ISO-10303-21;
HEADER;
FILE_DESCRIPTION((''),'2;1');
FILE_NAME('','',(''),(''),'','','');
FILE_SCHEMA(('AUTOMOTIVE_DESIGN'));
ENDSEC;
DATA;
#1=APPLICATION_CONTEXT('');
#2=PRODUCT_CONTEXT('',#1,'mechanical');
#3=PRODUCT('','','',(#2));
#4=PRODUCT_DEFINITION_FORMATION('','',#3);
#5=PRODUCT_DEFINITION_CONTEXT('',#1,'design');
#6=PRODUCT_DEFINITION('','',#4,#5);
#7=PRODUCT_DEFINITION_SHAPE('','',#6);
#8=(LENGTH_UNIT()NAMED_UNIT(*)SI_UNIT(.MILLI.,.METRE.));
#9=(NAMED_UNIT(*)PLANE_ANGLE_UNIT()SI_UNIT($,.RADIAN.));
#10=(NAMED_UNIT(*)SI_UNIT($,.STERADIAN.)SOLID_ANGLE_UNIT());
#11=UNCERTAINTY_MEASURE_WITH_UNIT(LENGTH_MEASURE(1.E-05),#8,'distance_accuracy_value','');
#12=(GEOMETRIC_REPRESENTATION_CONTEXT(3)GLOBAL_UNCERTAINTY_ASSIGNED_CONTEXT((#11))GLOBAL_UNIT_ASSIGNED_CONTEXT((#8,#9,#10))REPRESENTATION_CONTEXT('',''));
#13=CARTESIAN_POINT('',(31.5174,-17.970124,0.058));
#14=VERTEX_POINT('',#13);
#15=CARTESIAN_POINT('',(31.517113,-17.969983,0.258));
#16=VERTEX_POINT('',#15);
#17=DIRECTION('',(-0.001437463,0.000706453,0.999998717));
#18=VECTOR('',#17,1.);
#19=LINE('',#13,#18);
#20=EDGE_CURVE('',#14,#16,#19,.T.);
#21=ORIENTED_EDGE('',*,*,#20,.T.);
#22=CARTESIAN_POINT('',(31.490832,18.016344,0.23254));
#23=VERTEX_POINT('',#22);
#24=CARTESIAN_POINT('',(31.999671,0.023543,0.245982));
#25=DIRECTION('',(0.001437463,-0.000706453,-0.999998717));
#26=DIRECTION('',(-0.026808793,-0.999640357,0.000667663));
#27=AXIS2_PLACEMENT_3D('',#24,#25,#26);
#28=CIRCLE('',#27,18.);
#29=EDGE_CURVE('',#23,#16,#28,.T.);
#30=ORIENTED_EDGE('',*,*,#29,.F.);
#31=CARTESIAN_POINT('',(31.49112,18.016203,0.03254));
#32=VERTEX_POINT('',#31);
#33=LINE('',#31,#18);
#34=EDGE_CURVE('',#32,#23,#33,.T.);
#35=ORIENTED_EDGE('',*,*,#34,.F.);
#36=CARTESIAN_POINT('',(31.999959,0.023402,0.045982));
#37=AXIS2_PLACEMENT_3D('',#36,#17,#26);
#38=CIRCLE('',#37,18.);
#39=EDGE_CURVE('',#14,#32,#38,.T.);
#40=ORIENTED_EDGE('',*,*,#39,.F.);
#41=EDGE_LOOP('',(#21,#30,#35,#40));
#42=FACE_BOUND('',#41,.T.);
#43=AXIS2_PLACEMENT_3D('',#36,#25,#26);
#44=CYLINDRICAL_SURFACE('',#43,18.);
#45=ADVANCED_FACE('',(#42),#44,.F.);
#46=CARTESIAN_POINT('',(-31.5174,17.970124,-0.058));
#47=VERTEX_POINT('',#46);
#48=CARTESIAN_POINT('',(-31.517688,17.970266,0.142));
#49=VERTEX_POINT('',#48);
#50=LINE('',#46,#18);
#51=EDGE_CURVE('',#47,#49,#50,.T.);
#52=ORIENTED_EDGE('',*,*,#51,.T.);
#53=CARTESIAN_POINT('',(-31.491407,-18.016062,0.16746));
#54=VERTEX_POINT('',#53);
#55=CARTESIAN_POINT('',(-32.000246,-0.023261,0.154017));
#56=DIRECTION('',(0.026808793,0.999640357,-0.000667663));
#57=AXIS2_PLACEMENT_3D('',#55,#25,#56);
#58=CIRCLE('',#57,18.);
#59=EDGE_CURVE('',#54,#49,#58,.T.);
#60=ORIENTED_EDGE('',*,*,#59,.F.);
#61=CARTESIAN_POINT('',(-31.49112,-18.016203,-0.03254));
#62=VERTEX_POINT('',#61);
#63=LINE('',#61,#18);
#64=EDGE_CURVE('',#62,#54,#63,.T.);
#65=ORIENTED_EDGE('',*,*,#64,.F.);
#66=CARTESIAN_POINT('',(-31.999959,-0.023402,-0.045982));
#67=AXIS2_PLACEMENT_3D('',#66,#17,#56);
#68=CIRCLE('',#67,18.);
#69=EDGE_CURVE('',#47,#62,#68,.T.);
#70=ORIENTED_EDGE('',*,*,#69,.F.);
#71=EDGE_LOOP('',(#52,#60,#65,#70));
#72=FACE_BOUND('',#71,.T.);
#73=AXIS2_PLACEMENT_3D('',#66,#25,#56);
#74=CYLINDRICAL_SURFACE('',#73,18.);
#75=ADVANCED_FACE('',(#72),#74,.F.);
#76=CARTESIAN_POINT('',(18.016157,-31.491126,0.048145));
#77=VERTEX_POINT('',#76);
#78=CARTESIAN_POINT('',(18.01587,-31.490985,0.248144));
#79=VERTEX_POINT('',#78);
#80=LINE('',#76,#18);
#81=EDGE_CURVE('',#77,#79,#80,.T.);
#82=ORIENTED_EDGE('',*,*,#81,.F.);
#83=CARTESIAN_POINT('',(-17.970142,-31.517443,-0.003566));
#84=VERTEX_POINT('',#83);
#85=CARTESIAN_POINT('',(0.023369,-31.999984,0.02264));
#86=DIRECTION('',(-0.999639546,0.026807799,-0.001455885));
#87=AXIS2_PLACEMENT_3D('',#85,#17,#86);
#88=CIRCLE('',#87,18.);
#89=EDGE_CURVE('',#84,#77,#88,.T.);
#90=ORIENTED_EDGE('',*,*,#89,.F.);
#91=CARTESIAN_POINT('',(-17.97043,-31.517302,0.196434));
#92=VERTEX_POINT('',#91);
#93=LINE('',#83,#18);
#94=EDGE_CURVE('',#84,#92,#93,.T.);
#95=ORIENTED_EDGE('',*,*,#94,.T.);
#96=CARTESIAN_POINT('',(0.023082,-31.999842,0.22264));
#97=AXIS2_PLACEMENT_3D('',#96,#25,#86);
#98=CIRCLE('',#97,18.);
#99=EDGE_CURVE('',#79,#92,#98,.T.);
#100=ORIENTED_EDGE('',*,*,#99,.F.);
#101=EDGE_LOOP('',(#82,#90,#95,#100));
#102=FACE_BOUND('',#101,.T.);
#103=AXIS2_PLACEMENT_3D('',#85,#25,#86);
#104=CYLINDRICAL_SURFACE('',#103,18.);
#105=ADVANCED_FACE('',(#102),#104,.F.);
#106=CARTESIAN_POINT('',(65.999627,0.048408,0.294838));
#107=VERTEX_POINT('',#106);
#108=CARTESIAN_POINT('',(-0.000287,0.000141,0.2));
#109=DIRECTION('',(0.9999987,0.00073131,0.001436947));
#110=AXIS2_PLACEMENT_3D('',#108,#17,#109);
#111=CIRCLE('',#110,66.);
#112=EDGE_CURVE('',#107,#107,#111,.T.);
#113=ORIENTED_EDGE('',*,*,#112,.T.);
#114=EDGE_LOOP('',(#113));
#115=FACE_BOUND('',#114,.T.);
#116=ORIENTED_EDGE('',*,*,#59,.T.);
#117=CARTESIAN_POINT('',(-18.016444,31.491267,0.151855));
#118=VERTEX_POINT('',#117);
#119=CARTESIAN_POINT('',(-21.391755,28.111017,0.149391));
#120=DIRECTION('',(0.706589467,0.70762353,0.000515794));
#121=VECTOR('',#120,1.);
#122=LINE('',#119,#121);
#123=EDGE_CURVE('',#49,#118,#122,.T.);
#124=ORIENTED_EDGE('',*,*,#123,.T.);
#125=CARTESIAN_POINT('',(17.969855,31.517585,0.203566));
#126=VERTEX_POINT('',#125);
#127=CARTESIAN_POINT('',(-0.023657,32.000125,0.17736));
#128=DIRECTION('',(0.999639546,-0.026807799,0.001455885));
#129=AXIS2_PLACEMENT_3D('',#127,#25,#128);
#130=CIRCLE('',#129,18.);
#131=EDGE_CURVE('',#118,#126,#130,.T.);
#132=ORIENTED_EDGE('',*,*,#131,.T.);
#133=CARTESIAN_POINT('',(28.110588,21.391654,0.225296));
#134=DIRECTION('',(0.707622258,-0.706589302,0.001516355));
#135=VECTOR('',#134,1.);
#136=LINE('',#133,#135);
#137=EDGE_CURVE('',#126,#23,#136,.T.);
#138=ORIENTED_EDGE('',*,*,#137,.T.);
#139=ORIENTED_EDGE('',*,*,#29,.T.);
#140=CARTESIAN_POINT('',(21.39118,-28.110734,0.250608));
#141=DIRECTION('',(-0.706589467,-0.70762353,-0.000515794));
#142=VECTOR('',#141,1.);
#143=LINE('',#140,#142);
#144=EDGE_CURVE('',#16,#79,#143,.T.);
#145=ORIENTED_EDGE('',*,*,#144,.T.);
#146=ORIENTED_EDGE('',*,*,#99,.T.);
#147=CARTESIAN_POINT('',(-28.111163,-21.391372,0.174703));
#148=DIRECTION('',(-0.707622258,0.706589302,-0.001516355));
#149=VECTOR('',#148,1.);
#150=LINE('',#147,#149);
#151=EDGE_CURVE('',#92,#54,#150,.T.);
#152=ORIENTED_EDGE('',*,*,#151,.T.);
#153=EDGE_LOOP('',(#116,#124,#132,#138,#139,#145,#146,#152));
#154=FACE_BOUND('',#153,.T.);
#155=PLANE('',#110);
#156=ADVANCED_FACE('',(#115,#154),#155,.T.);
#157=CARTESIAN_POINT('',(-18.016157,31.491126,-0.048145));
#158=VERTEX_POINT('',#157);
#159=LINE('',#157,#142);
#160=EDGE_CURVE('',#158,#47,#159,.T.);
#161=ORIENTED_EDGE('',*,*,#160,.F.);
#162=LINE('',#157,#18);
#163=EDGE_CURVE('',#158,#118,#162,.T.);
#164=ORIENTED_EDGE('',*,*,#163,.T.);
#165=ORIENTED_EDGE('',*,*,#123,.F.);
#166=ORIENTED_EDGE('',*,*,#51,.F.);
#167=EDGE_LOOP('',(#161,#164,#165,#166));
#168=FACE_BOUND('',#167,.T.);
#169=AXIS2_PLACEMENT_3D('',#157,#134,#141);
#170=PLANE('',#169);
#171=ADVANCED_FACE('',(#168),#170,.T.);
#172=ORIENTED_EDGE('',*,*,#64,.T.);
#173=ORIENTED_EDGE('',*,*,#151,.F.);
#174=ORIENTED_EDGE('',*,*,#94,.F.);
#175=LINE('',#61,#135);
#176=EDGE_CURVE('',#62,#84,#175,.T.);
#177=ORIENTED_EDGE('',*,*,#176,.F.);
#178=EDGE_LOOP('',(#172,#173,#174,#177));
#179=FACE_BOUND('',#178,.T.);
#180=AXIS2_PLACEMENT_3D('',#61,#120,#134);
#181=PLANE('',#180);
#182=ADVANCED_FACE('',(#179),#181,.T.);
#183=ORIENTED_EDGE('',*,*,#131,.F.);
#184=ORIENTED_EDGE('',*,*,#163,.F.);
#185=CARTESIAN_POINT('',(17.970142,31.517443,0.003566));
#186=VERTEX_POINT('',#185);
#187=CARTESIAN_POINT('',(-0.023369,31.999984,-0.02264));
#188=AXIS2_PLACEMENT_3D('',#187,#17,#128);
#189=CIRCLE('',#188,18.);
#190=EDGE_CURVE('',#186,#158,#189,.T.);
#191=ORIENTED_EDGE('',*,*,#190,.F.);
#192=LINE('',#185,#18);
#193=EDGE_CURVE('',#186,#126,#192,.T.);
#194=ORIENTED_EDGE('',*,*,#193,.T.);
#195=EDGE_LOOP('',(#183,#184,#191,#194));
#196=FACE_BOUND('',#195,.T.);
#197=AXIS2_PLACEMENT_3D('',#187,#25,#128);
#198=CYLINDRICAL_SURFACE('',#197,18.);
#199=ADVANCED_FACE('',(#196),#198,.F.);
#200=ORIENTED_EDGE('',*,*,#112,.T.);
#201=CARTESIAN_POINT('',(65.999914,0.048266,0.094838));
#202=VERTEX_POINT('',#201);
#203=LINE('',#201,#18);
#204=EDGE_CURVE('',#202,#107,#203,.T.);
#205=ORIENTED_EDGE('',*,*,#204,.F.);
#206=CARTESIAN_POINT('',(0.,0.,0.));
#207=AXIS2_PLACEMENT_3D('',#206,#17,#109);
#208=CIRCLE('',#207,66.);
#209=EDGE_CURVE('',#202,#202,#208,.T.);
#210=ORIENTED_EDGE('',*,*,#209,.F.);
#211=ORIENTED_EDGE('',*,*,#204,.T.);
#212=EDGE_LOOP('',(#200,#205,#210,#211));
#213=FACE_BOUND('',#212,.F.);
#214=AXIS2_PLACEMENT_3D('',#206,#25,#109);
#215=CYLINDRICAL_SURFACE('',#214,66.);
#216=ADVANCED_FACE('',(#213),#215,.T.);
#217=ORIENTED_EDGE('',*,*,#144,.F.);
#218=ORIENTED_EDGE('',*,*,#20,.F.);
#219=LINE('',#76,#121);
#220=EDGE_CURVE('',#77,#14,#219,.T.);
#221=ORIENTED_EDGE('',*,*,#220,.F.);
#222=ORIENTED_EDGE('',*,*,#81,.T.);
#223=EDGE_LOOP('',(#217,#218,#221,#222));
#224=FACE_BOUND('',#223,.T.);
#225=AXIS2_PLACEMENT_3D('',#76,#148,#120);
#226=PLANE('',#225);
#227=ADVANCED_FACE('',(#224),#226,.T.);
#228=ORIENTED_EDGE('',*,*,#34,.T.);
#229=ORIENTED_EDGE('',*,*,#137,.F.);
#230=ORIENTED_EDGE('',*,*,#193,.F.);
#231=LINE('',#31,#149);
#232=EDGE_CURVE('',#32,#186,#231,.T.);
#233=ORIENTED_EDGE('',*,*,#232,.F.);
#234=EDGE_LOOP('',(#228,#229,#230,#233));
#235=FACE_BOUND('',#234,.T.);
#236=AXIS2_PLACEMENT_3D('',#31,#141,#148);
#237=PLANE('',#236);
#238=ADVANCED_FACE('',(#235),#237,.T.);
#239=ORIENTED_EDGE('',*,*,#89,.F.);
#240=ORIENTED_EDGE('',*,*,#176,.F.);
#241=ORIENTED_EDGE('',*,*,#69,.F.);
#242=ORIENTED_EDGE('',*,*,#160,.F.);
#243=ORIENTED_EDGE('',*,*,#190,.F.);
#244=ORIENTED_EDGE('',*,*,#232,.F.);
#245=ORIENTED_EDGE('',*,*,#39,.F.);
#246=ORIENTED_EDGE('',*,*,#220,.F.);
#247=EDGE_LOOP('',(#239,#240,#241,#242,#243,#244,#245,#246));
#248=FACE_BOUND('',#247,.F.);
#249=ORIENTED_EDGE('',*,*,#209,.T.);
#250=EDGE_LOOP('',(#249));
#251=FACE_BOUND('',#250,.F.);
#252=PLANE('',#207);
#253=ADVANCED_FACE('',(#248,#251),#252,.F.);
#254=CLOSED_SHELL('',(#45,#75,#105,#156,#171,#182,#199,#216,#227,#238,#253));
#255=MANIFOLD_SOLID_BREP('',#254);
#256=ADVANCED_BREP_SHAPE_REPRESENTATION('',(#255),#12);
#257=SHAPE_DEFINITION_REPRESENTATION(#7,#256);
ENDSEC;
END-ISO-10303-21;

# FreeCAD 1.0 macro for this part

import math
import FreeCAD as App
import Part
import Sketcher
from FreeCAD import Vector

doc = App.newDocument("Part")
body = doc.addObject("PartDesign::Body", "Body")

# Sketch on XY plane
sketch1 = body.newObject("Sketcher::SketchObject", "Sketch")
sketch1.AttachmentSupport = (doc.getObject("XY_Plane"), [""])
sketch1.MapMode = "FlatFace"
sketch1.addGeometry([
    Part.ArcOfCircle(Part.Circle(Vector(32, 0, 0), Vector(0, 0, 1), 18), math.radians(-91.578059), math.radians(91.578059)),  # 0
    Part.LineSegment(Vector(31.504301, 17.993173, 0), Vector(17.993173, 31.504301, 0)),  # 1
    Part.ArcOfCircle(Part.Circle(Vector(0, 32, 0), Vector(0, 0, 1), 18), math.radians(-1.578059), math.radians(181.578059)),  # 2
    Part.LineSegment(Vector(-17.993173, 31.504301, 0), Vector(-31.504301, 17.993173, 0)),  # 3
    Part.ArcOfCircle(Part.Circle(Vector(-32, 0, 0), Vector(0, 0, 1), 18), math.radians(88.421941), math.radians(271.578059)),  # 4
    Part.LineSegment(Vector(-31.504301, -17.993173, 0), Vector(-17.993173, -31.504301, 0)),  # 5
    Part.ArcOfCircle(Part.Circle(Vector(0, -32, 0), Vector(0, 0, 1), 18), math.radians(178.421941), math.radians(361.578059)),  # 6
    Part.LineSegment(Vector(17.993173, -31.504301, 0), Vector(31.504301, -17.993173, 0)),  # 7
], False)
sketch1.addConstraint([
    Sketcher.Constraint("Coincident", 0, 2, 1, 1),
    Sketcher.Constraint("Coincident", 1, 2, 2, 1),
    Sketcher.Constraint("Coincident", 2, 2, 3, 1),
    Sketcher.Constraint("Coincident", 3, 2, 4, 1),
    Sketcher.Constraint("Coincident", 4, 2, 5, 1),
    Sketcher.Constraint("Coincident", 5, 2, 6, 1),
    Sketcher.Constraint("Coincident", 6, 2, 7, 1),
    Sketcher.Constraint("Coincident", 7, 2, 0, 1),
    Sketcher.Constraint("Equal", 0, 2),
    Sketcher.Constraint("Equal", 2, 4),
    Sketcher.Constraint("Equal", 4, 6),
    Sketcher.Constraint("Symmetric", 0, 3, 4, 3, -1, 1),
    Sketcher.Constraint("Symmetric", 2, 3, 6, 3, -1, 1),
    Sketcher.Constraint("Symmetric", 1, 2, 2, 2, -2),
    Sketcher.Constraint("Symmetric", 0, 2, 3, 2, -2),
    Sketcher.Constraint("Perpendicular", 1, 3),
    Sketcher.Constraint("Perpendicular", 3, 5),
    Sketcher.Constraint("Perpendicular", 5, 7),
    Sketcher.Constraint("Horizontal", 5, 2, 6, 2),
    Sketcher.Constraint("Vertical", 3, 2, 4, 2),
    Sketcher.Constraint("Radius", 0, 18.0),
    Sketcher.Constraint("DistanceX", -1, 1, 0, 3, 32.0),
    Sketcher.Constraint("DistanceY", -1, 1, 2, 3, 32.0),
    Sketcher.Constraint("DistanceX", -1, 1, 0, 2, 31.504301),
])
pad1 = body.newObject("PartDesign::Pad", "Pad")
pad1.Profile = sketch1
pad1.Length = 10
body2 = doc.addObject("PartDesign::Body", "Body001")

# Sketch on XY plane
sketch2 = body2.newObject("Sketcher::SketchObject", "Sketch001")
sketch2.AttachmentSupport = (doc.getObject("XY_Plane001"), [""])
sketch2.MapMode = "FlatFace"
sketch2.addGeometry(Part.Circle(Vector(0, 0, 0), Vector(0, 0, 1), 66), False)
sketch2.addConstraint([
    Sketcher.Constraint("Coincident", 0, 3, -1, 1),
    Sketcher.Constraint("Diameter", 0, 132.0),
])
pad2 = body2.newObject("PartDesign::Pad", "Pad001")
pad2.Profile = sketch2
pad2.Length = 0.2
doc.recompute()

boolean = body2.newObject("PartDesign::Boolean", "Boolean")
boolean.Type = "Cut"
boolean.addObjects([body])
body3 = doc.addObject("PartDesign::Body", "Body002")
doc.recompute()

body2.Placement = App.Placement(Vector(0, 0, 0), App.Rotation(Vector(1, 0, 0), 359.959463))
boolean2 = body3.newObject("PartDesign::Boolean", "Boolean001")
boolean2.Type = "Fuse"
boolean2.addObjects([body2])
body4 = doc.addObject("PartDesign::Body", "Body003")
doc.recompute()

body3.Placement = App.Placement(Vector(0, 0, 0), App.Rotation(Vector(0, 1, 0), 359.917669))
boolean3 = body4.newObject("PartDesign::Boolean", "Boolean002")
boolean3.Type = "Fuse"
boolean3.addObjects([body3])
body5 = doc.addObject("PartDesign::Body", "Body004")
doc.recompute()

body4.Placement = App.Placement(Vector(0, 0, 0), App.Rotation(Vector(0, 0, 1), 0.041901))
boolean4 = body5.newObject("PartDesign::Boolean", "Boolean003")
boolean4.Type = "Fuse"
boolean4.addObjects([body4])

doc.recompute()
